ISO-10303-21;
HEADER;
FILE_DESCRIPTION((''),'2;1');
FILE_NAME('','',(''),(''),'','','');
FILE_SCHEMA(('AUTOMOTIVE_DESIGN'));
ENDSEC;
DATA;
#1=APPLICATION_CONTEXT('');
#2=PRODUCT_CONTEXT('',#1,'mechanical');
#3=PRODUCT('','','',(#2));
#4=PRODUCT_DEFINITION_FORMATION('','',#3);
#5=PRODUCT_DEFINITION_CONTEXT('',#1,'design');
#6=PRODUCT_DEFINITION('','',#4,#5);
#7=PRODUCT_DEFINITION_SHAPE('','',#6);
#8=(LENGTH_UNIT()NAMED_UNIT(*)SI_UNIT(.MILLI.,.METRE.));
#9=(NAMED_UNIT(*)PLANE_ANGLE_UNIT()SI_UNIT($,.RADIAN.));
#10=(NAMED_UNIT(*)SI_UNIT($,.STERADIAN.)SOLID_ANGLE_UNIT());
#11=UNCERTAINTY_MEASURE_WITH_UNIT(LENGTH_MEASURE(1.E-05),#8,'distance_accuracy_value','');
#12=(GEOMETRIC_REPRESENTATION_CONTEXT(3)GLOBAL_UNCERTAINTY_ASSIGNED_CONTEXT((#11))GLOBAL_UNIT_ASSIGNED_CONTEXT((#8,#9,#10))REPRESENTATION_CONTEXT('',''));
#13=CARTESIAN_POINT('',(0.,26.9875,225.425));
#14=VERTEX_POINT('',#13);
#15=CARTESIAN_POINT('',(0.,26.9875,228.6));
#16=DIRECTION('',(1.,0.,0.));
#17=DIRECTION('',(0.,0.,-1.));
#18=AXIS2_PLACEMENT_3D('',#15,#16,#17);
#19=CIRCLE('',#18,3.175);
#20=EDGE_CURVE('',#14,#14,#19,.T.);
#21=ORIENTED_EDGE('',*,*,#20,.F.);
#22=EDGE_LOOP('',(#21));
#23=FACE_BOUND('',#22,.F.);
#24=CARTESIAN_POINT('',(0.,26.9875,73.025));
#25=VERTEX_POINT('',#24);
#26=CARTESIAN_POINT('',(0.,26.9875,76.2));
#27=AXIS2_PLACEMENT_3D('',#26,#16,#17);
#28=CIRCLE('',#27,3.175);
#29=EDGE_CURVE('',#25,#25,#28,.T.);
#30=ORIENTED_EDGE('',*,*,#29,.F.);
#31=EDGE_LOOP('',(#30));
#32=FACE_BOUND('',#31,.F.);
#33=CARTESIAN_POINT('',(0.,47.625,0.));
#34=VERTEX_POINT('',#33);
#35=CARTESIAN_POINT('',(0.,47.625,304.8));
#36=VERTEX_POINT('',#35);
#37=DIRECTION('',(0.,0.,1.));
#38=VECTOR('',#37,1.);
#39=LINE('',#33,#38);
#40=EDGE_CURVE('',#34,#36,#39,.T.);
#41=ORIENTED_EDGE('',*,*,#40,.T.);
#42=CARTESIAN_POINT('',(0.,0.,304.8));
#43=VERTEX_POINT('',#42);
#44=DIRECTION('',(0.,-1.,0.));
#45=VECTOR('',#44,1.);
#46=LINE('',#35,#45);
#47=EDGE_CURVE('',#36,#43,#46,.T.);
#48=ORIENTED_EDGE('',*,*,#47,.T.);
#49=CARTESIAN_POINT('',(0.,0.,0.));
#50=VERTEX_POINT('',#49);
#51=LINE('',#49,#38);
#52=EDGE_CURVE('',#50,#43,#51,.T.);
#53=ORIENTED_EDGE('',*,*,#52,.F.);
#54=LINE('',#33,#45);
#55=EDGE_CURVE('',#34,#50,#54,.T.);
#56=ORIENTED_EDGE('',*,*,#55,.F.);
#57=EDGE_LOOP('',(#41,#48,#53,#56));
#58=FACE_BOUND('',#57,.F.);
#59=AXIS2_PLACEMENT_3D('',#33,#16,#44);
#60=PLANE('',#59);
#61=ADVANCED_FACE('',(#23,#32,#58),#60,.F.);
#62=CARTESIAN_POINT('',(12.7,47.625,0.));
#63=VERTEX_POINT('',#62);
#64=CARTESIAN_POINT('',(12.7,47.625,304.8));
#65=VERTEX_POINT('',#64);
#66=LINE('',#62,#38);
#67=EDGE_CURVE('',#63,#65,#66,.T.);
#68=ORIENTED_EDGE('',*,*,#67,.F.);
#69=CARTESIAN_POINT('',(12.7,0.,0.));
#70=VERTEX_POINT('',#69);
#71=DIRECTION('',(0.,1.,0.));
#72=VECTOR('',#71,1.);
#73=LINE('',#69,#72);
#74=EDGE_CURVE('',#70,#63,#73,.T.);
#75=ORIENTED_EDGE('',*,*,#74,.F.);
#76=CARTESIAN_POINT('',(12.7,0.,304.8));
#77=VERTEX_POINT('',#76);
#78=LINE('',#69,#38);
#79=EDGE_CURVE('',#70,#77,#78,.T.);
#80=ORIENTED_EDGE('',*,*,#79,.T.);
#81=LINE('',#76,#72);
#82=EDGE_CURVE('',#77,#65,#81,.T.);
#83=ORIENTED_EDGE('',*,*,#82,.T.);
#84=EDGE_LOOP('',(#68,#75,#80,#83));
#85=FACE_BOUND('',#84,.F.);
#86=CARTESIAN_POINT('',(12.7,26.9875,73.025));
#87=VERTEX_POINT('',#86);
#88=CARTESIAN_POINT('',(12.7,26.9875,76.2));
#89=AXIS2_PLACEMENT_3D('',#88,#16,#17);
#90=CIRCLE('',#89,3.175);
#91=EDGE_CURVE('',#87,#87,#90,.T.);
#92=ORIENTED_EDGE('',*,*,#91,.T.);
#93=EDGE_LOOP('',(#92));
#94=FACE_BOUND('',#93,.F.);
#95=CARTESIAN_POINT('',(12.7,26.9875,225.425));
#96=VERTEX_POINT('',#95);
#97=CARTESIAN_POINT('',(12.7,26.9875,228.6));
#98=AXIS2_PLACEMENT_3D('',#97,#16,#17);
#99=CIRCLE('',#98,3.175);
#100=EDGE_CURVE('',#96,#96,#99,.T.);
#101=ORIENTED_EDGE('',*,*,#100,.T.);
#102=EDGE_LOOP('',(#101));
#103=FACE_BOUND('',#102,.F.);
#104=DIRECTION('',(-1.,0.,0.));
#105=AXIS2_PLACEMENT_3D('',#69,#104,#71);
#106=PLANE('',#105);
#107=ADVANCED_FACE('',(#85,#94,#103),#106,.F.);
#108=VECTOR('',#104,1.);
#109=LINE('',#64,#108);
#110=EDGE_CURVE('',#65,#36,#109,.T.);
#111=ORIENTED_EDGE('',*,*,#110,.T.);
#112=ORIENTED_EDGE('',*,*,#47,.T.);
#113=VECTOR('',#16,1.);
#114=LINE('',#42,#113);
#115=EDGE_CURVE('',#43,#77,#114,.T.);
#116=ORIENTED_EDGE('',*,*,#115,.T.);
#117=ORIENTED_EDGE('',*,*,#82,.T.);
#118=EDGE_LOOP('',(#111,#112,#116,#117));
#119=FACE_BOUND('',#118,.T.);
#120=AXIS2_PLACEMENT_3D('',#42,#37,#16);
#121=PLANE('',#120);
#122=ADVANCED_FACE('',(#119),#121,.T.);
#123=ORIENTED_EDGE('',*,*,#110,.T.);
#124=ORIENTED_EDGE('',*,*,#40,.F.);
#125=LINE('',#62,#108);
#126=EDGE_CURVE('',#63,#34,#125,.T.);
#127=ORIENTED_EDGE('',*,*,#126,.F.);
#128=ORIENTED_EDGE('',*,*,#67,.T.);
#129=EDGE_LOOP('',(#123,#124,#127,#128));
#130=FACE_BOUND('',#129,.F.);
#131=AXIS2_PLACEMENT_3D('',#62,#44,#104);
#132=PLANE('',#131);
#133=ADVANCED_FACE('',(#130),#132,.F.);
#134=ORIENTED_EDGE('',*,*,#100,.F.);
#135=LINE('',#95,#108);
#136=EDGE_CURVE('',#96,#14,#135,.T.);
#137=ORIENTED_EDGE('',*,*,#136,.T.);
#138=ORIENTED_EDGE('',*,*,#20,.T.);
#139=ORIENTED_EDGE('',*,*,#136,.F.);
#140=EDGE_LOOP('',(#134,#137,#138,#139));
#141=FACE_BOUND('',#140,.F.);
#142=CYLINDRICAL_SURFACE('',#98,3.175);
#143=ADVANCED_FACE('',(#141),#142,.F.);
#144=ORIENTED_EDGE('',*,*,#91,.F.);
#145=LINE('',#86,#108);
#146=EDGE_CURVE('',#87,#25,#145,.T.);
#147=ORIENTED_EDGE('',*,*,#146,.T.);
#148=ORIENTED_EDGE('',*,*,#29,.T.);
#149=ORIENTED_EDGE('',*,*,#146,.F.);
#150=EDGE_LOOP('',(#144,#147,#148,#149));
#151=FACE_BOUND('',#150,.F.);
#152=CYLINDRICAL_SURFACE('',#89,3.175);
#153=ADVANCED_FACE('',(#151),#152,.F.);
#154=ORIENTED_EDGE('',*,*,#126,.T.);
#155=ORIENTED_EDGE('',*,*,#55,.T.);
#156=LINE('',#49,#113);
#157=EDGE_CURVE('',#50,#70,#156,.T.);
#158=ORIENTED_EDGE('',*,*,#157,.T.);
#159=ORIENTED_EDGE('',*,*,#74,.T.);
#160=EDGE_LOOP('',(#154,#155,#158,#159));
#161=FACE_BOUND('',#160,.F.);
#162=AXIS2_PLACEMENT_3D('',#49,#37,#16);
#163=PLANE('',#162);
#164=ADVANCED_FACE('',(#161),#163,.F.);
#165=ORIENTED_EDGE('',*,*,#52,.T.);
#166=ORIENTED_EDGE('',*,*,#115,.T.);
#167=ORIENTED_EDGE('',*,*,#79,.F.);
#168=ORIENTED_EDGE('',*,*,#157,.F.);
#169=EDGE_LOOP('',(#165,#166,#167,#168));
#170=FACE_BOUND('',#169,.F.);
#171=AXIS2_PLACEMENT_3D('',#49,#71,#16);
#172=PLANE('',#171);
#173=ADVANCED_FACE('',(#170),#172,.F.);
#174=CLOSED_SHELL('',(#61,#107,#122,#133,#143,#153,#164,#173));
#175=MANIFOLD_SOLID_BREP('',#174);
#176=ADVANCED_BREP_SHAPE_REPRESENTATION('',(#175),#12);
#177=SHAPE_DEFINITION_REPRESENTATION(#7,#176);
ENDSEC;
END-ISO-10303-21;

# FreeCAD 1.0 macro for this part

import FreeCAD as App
import Part
import Sketcher

V = App.Vector
Q = App.Units.Quantity

doc = App.newDocument("Part")
body = doc.addObject("PartDesign::Body", "Body")

# Sketch on XY plane
sketch1 = doc.addObject("Sketcher::SketchObject", "Sketch")
body.addObject(sketch1)
sketch1.AttachmentSupport = (doc.XY_Plane, [""])
sketch1.MapMode = "FlatFace"
sketch1.addGeometry(Part.LineSegment(V(0, 47.625, 0), V(0, 0, 0)), False)
sketch1.addGeometry(Part.LineSegment(V(0, 0, 0), V(12.7, 0, 0)), False)
sketch1.addGeometry(Part.LineSegment(V(12.7, 0, 0), V(12.7, 47.625, 0)), False)
sketch1.addGeometry(Part.LineSegment(V(12.7, 47.625, 0), V(0, 47.625, 0)), False)
sketch1.addConstraint(Sketcher.Constraint("Coincident", 0, 2, 1, 1))
sketch1.addConstraint(Sketcher.Constraint("Coincident", 1, 2, 2, 1))
sketch1.addConstraint(Sketcher.Constraint("Coincident", 2, 2, 3, 1))
sketch1.addConstraint(Sketcher.Constraint("Coincident", 3, 2, 0, 1))
sketch1.addConstraint(Sketcher.Constraint("Vertical", 0))
sketch1.addConstraint(Sketcher.Constraint("Horizontal", 1))
sketch1.addConstraint(Sketcher.Constraint("Vertical", 2))
sketch1.addConstraint(Sketcher.Constraint("Horizontal", 3))
sketch1.addConstraint(Sketcher.Constraint("Coincident", 0, 2, -1, 1))
sketch1.addConstraint(Sketcher.Constraint("DistanceX", 1, 1, 1, 2, Q("0.5 in")))
sketch1.addConstraint(Sketcher.Constraint("DistanceY", 0, 2, 0, 1, Q("1.875 in")))
pad1 = doc.addObject("PartDesign::Pad", "Pad")
body.addObject(pad1)
pad1.Profile = sketch1
pad1.Length = Q("12 in")

# Sketch on YZ plane
sketch2 = doc.addObject("Sketcher::SketchObject", "Sketch001")
body.addObject(sketch2)
sketch2.AttachmentSupport = (doc.YZ_Plane, [""])
sketch2.MapMode = "FlatFace"
sketch2.AttachmentOffset = App.Placement(V(0, 0, 0.5 * 25.4), App.Rotation())
sketch2.addGeometry(Part.Circle(V(26.9875, 228.6, 0), V(0, 0, 1), 3.175), False)
sketch2.addGeometry(Part.Circle(V(26.9875, 76.2, 0), V(0, 0, 1), 3.175), False)
sketch2.addConstraint(Sketcher.Constraint("Equal", 0, 1))
sketch2.addConstraint(Sketcher.Constraint("Vertical", 0, 3, 1, 3))
sketch2.addConstraint(Sketcher.Constraint("Diameter", 0, Q("0.25 in")))
sketch2.addConstraint(Sketcher.Constraint("DistanceY", -1, 1, 0, 3, Q("9 in")))
sketch2.addConstraint(Sketcher.Constraint("DistanceY", -1, 1, 1, 3, Q("3 in")))
sketch2.addConstraint(Sketcher.Constraint("DistanceX", -1, 1, 0, 3, Q("1.0625 in")))
pocket1 = doc.addObject("PartDesign::Pocket", "Pocket")
body.addObject(pocket1)
pocket1.Profile = sketch2
pocket1.Length = Q("0.5 in")

doc.recompute()
